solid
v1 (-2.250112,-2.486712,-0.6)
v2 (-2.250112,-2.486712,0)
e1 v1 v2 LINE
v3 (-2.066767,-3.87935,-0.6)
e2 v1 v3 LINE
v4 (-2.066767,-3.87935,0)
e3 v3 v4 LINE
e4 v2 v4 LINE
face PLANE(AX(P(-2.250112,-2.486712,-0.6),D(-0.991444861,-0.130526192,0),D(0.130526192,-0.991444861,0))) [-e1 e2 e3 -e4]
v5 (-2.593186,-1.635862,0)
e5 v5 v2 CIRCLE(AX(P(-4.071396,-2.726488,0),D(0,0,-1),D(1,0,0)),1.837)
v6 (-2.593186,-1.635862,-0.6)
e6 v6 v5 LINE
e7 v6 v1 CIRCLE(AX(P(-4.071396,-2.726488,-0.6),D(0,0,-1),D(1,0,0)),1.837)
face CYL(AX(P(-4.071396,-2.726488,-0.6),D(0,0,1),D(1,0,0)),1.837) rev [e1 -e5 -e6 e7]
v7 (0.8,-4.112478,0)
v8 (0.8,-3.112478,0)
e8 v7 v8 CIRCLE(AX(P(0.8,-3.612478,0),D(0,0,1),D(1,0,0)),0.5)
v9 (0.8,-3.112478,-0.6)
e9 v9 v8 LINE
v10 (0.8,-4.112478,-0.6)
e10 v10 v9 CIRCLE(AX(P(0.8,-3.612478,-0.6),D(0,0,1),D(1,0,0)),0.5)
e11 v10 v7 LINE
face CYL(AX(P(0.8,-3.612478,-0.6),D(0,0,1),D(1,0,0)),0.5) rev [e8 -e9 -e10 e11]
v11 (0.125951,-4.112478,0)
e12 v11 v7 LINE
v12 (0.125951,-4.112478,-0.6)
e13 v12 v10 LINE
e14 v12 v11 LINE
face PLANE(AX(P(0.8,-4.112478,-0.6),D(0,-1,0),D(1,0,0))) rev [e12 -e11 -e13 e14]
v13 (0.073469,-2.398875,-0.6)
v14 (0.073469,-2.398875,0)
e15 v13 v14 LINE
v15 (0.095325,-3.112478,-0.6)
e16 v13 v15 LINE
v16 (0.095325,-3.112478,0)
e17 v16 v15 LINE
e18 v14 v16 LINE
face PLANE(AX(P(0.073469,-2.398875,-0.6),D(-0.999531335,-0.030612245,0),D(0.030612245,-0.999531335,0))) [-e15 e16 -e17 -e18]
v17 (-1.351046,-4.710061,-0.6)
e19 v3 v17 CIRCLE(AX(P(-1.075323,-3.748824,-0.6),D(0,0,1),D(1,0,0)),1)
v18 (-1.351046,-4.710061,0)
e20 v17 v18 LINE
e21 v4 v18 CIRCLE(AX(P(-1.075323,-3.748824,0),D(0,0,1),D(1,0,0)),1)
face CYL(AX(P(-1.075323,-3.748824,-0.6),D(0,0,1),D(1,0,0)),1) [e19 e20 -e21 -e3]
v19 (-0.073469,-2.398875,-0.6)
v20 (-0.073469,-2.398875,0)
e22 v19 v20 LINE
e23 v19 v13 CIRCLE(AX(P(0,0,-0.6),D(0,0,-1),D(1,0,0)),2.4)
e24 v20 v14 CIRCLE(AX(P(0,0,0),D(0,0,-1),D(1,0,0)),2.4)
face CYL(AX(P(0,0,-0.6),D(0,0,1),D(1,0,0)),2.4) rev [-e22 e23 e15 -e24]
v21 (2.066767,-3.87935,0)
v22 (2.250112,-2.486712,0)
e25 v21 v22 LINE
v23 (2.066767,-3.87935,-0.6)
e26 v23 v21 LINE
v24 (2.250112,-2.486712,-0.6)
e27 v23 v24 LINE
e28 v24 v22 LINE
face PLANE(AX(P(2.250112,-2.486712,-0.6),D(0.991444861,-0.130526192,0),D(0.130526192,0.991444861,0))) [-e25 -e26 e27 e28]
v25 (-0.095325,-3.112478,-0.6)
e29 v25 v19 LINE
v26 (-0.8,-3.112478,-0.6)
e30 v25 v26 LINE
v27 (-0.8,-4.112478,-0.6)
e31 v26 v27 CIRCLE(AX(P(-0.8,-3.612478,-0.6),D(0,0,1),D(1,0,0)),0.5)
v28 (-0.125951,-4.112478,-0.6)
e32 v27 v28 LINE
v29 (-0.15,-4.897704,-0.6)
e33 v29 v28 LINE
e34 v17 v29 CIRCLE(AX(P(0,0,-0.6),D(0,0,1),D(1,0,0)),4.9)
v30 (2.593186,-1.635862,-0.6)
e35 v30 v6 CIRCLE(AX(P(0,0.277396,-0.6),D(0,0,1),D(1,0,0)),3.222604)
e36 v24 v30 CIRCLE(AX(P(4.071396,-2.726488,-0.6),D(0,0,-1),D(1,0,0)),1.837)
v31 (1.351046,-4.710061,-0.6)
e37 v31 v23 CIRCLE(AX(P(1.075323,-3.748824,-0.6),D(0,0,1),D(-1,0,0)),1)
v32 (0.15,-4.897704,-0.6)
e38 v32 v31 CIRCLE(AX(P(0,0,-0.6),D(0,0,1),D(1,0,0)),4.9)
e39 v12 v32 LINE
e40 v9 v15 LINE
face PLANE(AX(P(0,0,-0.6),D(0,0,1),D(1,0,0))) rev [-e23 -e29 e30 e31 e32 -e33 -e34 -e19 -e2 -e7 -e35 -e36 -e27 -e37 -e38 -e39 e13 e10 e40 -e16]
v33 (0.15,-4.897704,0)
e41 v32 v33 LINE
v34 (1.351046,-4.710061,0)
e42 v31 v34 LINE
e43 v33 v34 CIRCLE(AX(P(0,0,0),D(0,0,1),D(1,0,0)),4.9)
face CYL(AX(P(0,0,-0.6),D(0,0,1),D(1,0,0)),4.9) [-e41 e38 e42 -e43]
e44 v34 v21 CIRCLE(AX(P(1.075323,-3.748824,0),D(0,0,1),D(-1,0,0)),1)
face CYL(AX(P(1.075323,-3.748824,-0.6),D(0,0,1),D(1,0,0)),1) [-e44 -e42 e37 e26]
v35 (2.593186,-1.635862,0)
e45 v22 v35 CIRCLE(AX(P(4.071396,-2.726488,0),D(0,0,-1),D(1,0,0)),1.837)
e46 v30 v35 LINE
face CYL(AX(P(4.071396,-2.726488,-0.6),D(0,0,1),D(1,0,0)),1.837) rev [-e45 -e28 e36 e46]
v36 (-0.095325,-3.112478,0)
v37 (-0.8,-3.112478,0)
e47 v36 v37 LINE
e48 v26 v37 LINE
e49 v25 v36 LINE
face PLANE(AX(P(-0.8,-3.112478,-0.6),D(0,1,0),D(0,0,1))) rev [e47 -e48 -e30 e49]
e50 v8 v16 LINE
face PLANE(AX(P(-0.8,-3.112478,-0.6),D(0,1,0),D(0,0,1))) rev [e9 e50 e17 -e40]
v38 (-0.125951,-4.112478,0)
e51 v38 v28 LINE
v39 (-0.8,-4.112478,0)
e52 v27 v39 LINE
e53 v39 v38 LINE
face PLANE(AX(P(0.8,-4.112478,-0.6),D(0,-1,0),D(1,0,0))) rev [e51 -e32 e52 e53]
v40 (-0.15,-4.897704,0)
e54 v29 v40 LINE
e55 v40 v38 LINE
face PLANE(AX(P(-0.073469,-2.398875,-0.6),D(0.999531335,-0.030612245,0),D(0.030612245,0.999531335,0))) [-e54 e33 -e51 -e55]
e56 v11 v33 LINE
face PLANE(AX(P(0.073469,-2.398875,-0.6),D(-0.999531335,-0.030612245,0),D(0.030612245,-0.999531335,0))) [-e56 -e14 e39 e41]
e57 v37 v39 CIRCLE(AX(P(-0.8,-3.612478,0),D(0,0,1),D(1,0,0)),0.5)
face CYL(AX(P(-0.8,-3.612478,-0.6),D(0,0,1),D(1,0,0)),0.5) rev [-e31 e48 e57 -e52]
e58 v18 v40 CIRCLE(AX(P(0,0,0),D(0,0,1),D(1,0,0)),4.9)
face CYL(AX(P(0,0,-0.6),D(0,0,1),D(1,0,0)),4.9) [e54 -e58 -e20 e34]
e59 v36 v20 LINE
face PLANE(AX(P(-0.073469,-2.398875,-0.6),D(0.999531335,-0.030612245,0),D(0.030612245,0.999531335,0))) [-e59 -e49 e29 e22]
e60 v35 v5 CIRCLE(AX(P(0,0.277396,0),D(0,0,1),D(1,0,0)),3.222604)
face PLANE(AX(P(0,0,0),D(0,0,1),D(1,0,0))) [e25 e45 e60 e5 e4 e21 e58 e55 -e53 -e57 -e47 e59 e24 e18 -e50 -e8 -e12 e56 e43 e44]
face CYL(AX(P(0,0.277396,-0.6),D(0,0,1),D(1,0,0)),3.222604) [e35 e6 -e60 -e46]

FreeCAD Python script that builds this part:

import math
import FreeCAD as App
import Part
import Sketcher
from FreeCAD import Vector
Q = App.Units.Quantity

doc = App.newDocument("Part")
params = doc.addObject("Spreadsheet::Sheet", "Params")
for row, (alias, value) in enumerate([
    ("sketch1_diameter", "1 mm"),
    ("sketch1_radius", "1 mm"),
    ("sketch1_radius2", "4.9 mm"),
    ("sketch1_radius3", "2.4 mm"),
    ("pad1_length", "0.6 mm"),
    ("sketch2_height", "1 mm"),
    ("sketch2_width", "1.6 mm"),
], start=1):
    params.set(f"A{row}", alias)
    params.set(f"B{row}", "=" + value)
    params.setAlias(f"B{row}", alias)

body = doc.addObject("PartDesign::Body", "Body")

sketch1 = doc.addObject("Sketcher::SketchObject", "Sketch")
body.addObject(sketch1)
sketch1.AttachmentSupport = (doc.XY_Plane, [""])
sketch1.MapMode = "FlatFace"
sketch1.addGeometry(Part.LineSegment(Vector(0.07, -2.4, 0), Vector(0.15, -4.9, 0)), False)
sketch1.addGeometry(Part.ArcOfCircle(Part.Circle(Vector(0, 0, 0), Vector(0, 0, 1), 4.9), math.radians(-88.25), math.radians(-73.99)), False)
sketch1.addGeometry(Part.ArcOfCircle(Part.Circle(Vector(1.08, -3.75, 0), Vector(0, 0, 1), 1), math.radians(-74), math.radians(-8)), False)
sketch1.addGeometry(Part.LineSegment(Vector(2.07, -3.88, 0), Vector(2.25, -2.49, 0)), False)
sketch1.addGeometry(Part.ArcOfCircle(Part.Circle(Vector(4.07, -2.73, 0), Vector(0, 0, 1), 1.84), math.radians(144), math.radians(172)), False)
sketch1.addGeometry(Part.ArcOfCircle(Part.Circle(Vector(0, 0.28, 0), Vector(0, 0, 1), 3.22), math.radians(-36), math.radians(216)), False)
sketch1.addGeometry(Part.ArcOfCircle(Part.Circle(Vector(-4.07, -2.73, 0), Vector(0, 0, 1), 1.84), math.radians(8), math.radians(36)), False)
sketch1.addGeometry(Part.LineSegment(Vector(-2.25, -2.49, 0), Vector(-2.07, -3.88, 0)), False)
sketch1.addGeometry(Part.ArcOfCircle(Part.Circle(Vector(-1.08, -3.75, 0), Vector(0, 0, 1), 1), math.radians(-172), math.radians(-106)), False)
sketch1.addGeometry(Part.ArcOfCircle(Part.Circle(Vector(0, 0, 0), Vector(0, 0, 1), 4.9), math.radians(-106.01), math.radians(-91.75)), False)
sketch1.addGeometry(Part.LineSegment(Vector(-0.15, -4.9, 0), Vector(-0.07, -2.4, 0)), False)
sketch1.addGeometry(Part.ArcOfCircle(Part.Circle(Vector(0, 0, 0), Vector(0, 0, 1), 2.4), math.radians(-88), math.radians(268)), False)
sketch1.addGeometry(Part.Circle(Vector(-0.8, -3.61, 0), Vector(0, 0, 1), 0.5), False)
sketch1.addGeometry(Part.Circle(Vector(0.8, -3.61, 0), Vector(0, 0, 1), 0.5), False)
sketch1.addConstraint(Sketcher.Constraint("Coincident", 0, 2, 1, 1))
sketch1.addConstraint(Sketcher.Constraint("Tangent", 1, 2, 2, 1))
sketch1.addConstraint(Sketcher.Constraint("Tangent", 2, 2, 3, 1))
sketch1.addConstraint(Sketcher.Constraint("Tangent", 3, 2, 4, 2))
sketch1.addConstraint(Sketcher.Constraint("Tangent", 4, 1, 5, 1))
sketch1.addConstraint(Sketcher.Constraint("Tangent", 5, 2, 6, 2))
sketch1.addConstraint(Sketcher.Constraint("Tangent", 6, 1, 7, 1))
sketch1.addConstraint(Sketcher.Constraint("Tangent", 7, 2, 8, 1))
sketch1.addConstraint(Sketcher.Constraint("Tangent", 8, 2, 9, 1))
sketch1.addConstraint(Sketcher.Constraint("Coincident", 9, 2, 10, 1))
sketch1.addConstraint(Sketcher.Constraint("Coincident", 10, 2, 11, 2))
sketch1.addConstraint(Sketcher.Constraint("Coincident", 11, 1, 0, 1))
sketch1.addConstraint(Sketcher.Constraint("Coincident", 1, 3, -1, 1))
sketch1.addConstraint(Sketcher.Constraint("Coincident", 9, 3, -1, 1))
sketch1.addConstraint(Sketcher.Constraint("Coincident", 11, 3, -1, 1))
sketch1.addConstraint(Sketcher.Constraint("Equal", 4, 6))
sketch1.addConstraint(Sketcher.Constraint("Equal", 2, 8))
sketch1.addConstraint(Sketcher.Constraint("Equal", 1, 9))
sketch1.addConstraint(Sketcher.Constraint("Equal", 12, 13))
sketch1.addConstraint(Sketcher.Constraint("Symmetric", 4, 3, 6, 3, -2))
sketch1.addConstraint(Sketcher.Constraint("Symmetric", 12, 3, 13, 3, -2))
sketch1.addConstraint(Sketcher.Constraint("Horizontal", 2, 3, 8, 3))
sketch1.addConstraint(Sketcher.Constraint("Horizontal", 0, 2, 9, 2))
sketch1.addConstraint(Sketcher.Constraint("Horizontal", 10, 2, 11, 1))
sketch1.addConstraint(Sketcher.Constraint("Diameter", 12, Q("1 mm")))
sketch1.addConstraint(Sketcher.Constraint("Radius", 2, Q("1 mm")))
sketch1.addConstraint(Sketcher.Constraint("Radius", 1, Q("4.9 mm")))
sketch1.addConstraint(Sketcher.Constraint("Radius", 11, Q("2.4 mm")))
sketch1.addConstraint(Sketcher.Constraint("Angle", 3, Q("82.5 deg")))
sketch1.addConstraint(Sketcher.Constraint("Radius", 4, Q("1.837 mm")))
sketch1.addConstraint(Sketcher.Constraint("DistanceX", 12, 3, -1, 1, Q("0.8 mm")))
sketch1.addConstraint(Sketcher.Constraint("DistanceX", 9, 2, 0, 2, Q("0.3 mm")))
sketch1.addConstraint(Sketcher.Constraint("Radius", 5, Q("3.222604 mm")))
sketch1.addConstraint(Sketcher.Constraint("DistanceY", 4, 3, -1, 1, Q("2.726488 mm")))
sketch1.addConstraint(Sketcher.Constraint("DistanceY", 12, 3, -1, 1, Q("3.612478 mm")))
sketch1.addConstraint(Sketcher.Constraint("DistanceY", 1, 2, -1, 1, Q("4.710061 mm")))
sketch1.addConstraint(Sketcher.Constraint("DistanceX", 10, 2, -1, 1, Q("0.073469 mm")))
sketch1.setExpression("Constraints[24]", "Params.sketch1_diameter")
sketch1.setExpression("Constraints[25]", "Params.sketch1_radius")
sketch1.setExpression("Constraints[26]", "Params.sketch1_radius2")
sketch1.setExpression("Constraints[27]", "Params.sketch1_radius3")
pad1 = doc.addObject("PartDesign::Pad", "Pad")
body.addObject(pad1)
pad1.Profile = sketch1
pad1.setExpression("Length", "Params.pad1_length")
pad1.Reversed = True

sketch2 = doc.addObject("Sketcher::SketchObject", "Sketch001")
body.addObject(sketch2)
sketch2.AttachmentSupport = (doc.XY_Plane, [""])
sketch2.MapMode = "FlatFace"
sketch2.addGeometry(Part.LineSegment(Vector(-0.8, -3.1, 0), Vector(-0.8, -4.1, 0)), False)
sketch2.addGeometry(Part.LineSegment(Vector(-0.8, -4.1, 0), Vector(0.8, -4.1, 0)), False)
sketch2.addGeometry(Part.LineSegment(Vector(0.8, -4.1, 0), Vector(0.8, -3.1, 0)), False)
sketch2.addGeometry(Part.LineSegment(Vector(0.8, -3.1, 0), Vector(-0.8, -3.1, 0)), False)
sketch2.addConstraint(Sketcher.Constraint("Coincident", 0, 2, 1, 1))
sketch2.addConstraint(Sketcher.Constraint("Coincident", 1, 2, 2, 1))
sketch2.addConstraint(Sketcher.Constraint("Coincident", 2, 2, 3, 1))
sketch2.addConstraint(Sketcher.Constraint("Coincident", 3, 2, 0, 1))
sketch2.addConstraint(Sketcher.Constraint("Vertical", 0))
sketch2.addConstraint(Sketcher.Constraint("Horizontal", 1))
sketch2.addConstraint(Sketcher.Constraint("Vertical", 2))
sketch2.addConstraint(Sketcher.Constraint("Horizontal", 3))
sketch2.addConstraint(Sketcher.Constraint("DistanceY", 0, 2, 0, 1, Q("1 mm")))
sketch2.addConstraint(Sketcher.Constraint("DistanceX", 1, 1, 1, 2, Q("1.6 mm")))
sketch2.addConstraint(Sketcher.Constraint("DistanceX", 0, 2, -1, 1, Q("0.8 mm")))
sketch2.addConstraint(Sketcher.Constraint("DistanceY", 0, 2, -1, 1, Q("4.112478 mm")))
sketch2.setExpression("Constraints[8]", "Params.sketch2_height")
sketch2.setExpression("Constraints[9]", "Params.sketch2_width")
pocket1 = doc.addObject("PartDesign::Pocket", "Pocket")
body.addObject(pocket1)
pocket1.Profile = sketch2
pocket1.Type = "ThroughAll"

doc.recompute()
